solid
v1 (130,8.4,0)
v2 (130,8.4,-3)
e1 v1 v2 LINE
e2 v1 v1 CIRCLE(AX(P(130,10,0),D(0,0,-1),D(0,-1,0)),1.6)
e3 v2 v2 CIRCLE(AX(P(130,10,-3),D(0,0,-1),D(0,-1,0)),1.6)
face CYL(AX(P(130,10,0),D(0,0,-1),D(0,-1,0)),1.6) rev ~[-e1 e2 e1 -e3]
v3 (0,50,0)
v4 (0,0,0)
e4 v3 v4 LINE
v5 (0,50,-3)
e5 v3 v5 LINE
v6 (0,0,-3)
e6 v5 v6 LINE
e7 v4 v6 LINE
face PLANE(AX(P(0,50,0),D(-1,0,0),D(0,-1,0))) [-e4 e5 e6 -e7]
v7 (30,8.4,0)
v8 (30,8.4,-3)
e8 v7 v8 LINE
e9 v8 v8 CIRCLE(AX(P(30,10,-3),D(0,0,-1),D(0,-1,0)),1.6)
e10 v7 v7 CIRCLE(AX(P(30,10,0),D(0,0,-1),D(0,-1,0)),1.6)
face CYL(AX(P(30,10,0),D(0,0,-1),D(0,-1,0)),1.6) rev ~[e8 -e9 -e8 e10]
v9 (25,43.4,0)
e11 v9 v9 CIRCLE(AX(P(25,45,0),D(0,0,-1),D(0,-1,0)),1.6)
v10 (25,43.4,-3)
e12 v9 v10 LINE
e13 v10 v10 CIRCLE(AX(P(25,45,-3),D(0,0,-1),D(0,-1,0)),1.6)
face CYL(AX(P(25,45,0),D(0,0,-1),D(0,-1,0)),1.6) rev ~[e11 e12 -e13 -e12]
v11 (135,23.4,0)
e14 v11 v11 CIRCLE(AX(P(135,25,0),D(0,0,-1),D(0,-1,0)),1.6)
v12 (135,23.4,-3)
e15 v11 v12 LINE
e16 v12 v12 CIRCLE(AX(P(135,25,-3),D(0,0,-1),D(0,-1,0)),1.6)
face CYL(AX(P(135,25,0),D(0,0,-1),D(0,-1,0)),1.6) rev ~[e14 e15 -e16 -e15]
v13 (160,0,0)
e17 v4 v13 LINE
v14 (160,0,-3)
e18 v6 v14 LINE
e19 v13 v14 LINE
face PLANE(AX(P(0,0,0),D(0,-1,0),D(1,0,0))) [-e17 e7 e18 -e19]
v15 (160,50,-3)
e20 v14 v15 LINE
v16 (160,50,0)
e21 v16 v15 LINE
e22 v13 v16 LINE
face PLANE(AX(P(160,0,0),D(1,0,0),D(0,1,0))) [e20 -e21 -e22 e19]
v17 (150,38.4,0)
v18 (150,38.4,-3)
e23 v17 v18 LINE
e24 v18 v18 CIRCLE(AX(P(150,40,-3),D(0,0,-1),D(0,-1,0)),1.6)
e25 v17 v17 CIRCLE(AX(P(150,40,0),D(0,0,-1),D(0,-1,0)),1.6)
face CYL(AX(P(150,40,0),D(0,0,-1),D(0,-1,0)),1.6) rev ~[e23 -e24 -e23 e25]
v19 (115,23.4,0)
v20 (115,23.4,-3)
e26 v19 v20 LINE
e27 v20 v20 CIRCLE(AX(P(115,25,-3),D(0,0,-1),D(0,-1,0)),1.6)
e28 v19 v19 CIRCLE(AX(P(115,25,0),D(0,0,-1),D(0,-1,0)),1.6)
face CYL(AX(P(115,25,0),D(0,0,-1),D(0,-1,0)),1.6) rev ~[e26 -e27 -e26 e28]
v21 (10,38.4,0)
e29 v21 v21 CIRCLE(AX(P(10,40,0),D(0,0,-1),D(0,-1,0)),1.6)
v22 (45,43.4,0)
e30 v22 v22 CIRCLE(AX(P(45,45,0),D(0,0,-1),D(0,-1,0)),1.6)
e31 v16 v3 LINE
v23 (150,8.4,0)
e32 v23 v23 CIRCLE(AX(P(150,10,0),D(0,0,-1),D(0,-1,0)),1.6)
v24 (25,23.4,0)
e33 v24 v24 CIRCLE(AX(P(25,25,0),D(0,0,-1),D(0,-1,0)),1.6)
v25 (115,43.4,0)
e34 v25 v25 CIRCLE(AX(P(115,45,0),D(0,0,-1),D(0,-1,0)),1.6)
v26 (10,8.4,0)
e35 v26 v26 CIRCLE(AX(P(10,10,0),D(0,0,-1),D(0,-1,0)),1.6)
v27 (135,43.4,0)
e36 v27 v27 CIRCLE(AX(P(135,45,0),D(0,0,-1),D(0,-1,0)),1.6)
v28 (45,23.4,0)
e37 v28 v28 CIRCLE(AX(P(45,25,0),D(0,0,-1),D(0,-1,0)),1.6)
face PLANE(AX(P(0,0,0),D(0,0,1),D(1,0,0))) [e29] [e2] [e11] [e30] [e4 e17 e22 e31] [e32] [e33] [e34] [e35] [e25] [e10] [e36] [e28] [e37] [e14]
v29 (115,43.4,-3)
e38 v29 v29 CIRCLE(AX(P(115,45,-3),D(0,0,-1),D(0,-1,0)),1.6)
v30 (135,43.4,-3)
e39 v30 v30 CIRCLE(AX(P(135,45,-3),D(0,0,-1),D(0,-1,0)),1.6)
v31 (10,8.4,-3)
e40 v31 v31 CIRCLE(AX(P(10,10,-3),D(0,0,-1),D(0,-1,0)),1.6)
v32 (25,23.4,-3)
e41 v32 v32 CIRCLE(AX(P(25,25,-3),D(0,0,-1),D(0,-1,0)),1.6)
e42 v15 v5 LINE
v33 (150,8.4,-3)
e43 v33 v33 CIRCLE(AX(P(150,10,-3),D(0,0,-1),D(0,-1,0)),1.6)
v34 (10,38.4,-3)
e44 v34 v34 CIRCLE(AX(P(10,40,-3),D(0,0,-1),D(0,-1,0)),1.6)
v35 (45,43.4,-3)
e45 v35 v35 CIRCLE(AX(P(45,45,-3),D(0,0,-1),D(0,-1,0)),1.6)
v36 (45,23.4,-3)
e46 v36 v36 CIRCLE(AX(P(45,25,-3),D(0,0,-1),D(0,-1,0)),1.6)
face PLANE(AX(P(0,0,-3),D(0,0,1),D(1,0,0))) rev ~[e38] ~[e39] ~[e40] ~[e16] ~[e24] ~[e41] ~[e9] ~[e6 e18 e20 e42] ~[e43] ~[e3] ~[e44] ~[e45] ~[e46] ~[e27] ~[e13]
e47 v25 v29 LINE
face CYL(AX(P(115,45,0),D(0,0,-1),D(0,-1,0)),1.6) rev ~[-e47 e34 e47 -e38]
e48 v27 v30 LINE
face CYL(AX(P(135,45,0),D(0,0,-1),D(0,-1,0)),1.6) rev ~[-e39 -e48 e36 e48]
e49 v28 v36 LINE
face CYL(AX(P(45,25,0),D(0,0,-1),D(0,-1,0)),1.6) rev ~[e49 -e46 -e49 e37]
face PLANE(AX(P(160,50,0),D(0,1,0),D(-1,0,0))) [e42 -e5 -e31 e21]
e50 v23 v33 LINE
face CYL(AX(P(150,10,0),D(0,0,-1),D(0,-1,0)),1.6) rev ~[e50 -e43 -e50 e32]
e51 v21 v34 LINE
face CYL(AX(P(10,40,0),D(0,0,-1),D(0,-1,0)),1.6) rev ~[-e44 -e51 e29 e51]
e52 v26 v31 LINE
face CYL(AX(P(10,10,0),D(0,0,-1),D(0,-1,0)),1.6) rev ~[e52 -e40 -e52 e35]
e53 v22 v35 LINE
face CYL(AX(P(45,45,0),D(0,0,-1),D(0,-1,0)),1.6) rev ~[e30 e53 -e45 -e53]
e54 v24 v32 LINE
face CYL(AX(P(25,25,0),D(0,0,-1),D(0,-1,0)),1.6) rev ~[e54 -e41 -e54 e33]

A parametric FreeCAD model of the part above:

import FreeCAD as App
import Part
import Sketcher
Q = App.Units.Quantity

doc = App.newDocument("Part")
params = doc.addObject("Spreadsheet::Sheet", "Params")
for row, (alias, value) in enumerate([
    ("sketch1_width", "160 mm"),
    ("sketch1_height", "50 mm"),
    ("pad1_length", "3 mm"),
    ("sketch2_diameter", "3.2 mm"),
    ("hole_diameter", "3.2 mm"),
    ("sketch3_diameter", "3.2 mm"),
    ("hole2_diameter", "3.2 mm"),
], start=1):
    params.set(f"A{row}", alias)
    params.set(f"B{row}", "=" + value)
    params.setAlias(f"B{row}", alias)

body = doc.addObject("PartDesign::Body", "Body")

sketch1 = body.newObject("Sketcher::SketchObject", "Sketch")
sketch1.AttachmentSupport = (doc.getObject("XY_Plane"), [""])
sketch1.MapMode = "FlatFace"
sketch1.addGeometry(Part.LineSegment(App.Vector(0, 50, 0), App.Vector(0, 0, 0)), False)
sketch1.addGeometry(Part.LineSegment(App.Vector(0, 0, 0), App.Vector(160, 0, 0)), False)
sketch1.addGeometry(Part.LineSegment(App.Vector(160, 0, 0), App.Vector(160, 50, 0)), False)
sketch1.addGeometry(Part.LineSegment(App.Vector(160, 50, 0), App.Vector(0, 50, 0)), False)
sketch1.addConstraint(Sketcher.Constraint("Coincident", 0, 2, 1, 1))
sketch1.addConstraint(Sketcher.Constraint("Coincident", 1, 2, 2, 1))
sketch1.addConstraint(Sketcher.Constraint("Coincident", 2, 2, 3, 1))
sketch1.addConstraint(Sketcher.Constraint("Coincident", 3, 2, 0, 1))
sketch1.addConstraint(Sketcher.Constraint("Vertical", 0))
sketch1.addConstraint(Sketcher.Constraint("Horizontal", 1))
sketch1.addConstraint(Sketcher.Constraint("Vertical", 2))
sketch1.addConstraint(Sketcher.Constraint("Horizontal", 3))
sketch1.addConstraint(Sketcher.Constraint("Coincident", 0, 2, -1, 1))
sketch1.addConstraint(Sketcher.Constraint("DistanceX", 1, 1, 1, 2, Q("160 mm")))
sketch1.addConstraint(Sketcher.Constraint("DistanceY", 0, 2, 0, 1, Q("50 mm")))
sketch1.setExpression("Constraints[9]", "Params.sketch1_width")
sketch1.setExpression("Constraints[10]", "Params.sketch1_height")
pad1 = body.newObject("PartDesign::Pad", "Pad")
pad1.Profile = sketch1
pad1.setExpression("Length", "Params.pad1_length")
pad1.Reversed = True

sketch2 = body.newObject("Sketcher::SketchObject", "Sketch001")
sketch2.AttachmentSupport = (doc.getObject("XY_Plane"), [""])
sketch2.MapMode = "FlatFace"
sketch2.addGeometry(Part.Circle(App.Vector(135, 45, 0), App.Vector(0, 0, 1), 1.6), False)
sketch2.addGeometry(Part.Circle(App.Vector(135, 25, 0), App.Vector(0, 0, 1), 1.6), False)
sketch2.addGeometry(Part.Circle(App.Vector(25, 45, 0), App.Vector(0, 0, 1), 1.6), False)
sketch2.addGeometry(Part.Circle(App.Vector(25, 25, 0), App.Vector(0, 0, 1), 1.6), False)
sketch2.addGeometry(Part.Circle(App.Vector(115, 45, 0), App.Vector(0, 0, 1), 1.6), False)
sketch2.addGeometry(Part.Circle(App.Vector(115, 25, 0), App.Vector(0, 0, 1), 1.6), False)
sketch2.addGeometry(Part.Circle(App.Vector(45, 45, 0), App.Vector(0, 0, 1), 1.6), False)
sketch2.addGeometry(Part.Circle(App.Vector(45, 25, 0), App.Vector(0, 0, 1), 1.6), False)
sketch2.addGeometry(Part.Circle(App.Vector(150, 40, 0), App.Vector(0, 0, 1), 1.6), False)
sketch2.addGeometry(Part.Circle(App.Vector(150, 10, 0), App.Vector(0, 0, 1), 1.6), False)
sketch2.addGeometry(Part.Circle(App.Vector(10, 40, 0), App.Vector(0, 0, 1), 1.6), False)
sketch2.addGeometry(Part.Circle(App.Vector(10, 10, 0), App.Vector(0, 0, 1), 1.6), False)
sketch2.addConstraint(Sketcher.Constraint("Equal", 0, 1))
sketch2.addConstraint(Sketcher.Constraint("Equal", 1, 2))
sketch2.addConstraint(Sketcher.Constraint("Equal", 2, 3))
sketch2.addConstraint(Sketcher.Constraint("Equal", 3, 4))
sketch2.addConstraint(Sketcher.Constraint("Equal", 4, 5))
sketch2.addConstraint(Sketcher.Constraint("Equal", 5, 6))
sketch2.addConstraint(Sketcher.Constraint("Equal", 6, 7))
sketch2.addConstraint(Sketcher.Constraint("Equal", 7, 8))
sketch2.addConstraint(Sketcher.Constraint("Equal", 8, 9))
sketch2.addConstraint(Sketcher.Constraint("Equal", 9, 10))
sketch2.addConstraint(Sketcher.Constraint("Equal", 10, 11))
sketch2.addConstraint(Sketcher.Constraint("Horizontal", 0, 3, 2, 3))
sketch2.addConstraint(Sketcher.Constraint("Horizontal", 1, 3, 3, 3))
sketch2.addConstraint(Sketcher.Constraint("Horizontal", 2, 3, 4, 3))
sketch2.addConstraint(Sketcher.Constraint("Horizontal", 3, 3, 5, 3))
sketch2.addConstraint(Sketcher.Constraint("Horizontal", 4, 3, 6, 3))
sketch2.addConstraint(Sketcher.Constraint("Horizontal", 5, 3, 7, 3))
sketch2.addConstraint(Sketcher.Constraint("Horizontal", 8, 3, 10, 3))
sketch2.addConstraint(Sketcher.Constraint("Horizontal", 9, 3, 11, 3))
sketch2.addConstraint(Sketcher.Constraint("Vertical", 0, 3, 1, 3))
sketch2.addConstraint(Sketcher.Constraint("Vertical", 2, 3, 3, 3))
sketch2.addConstraint(Sketcher.Constraint("Vertical", 4, 3, 5, 3))
sketch2.addConstraint(Sketcher.Constraint("Vertical", 6, 3, 7, 3))
sketch2.addConstraint(Sketcher.Constraint("Vertical", 8, 3, 9, 3))
sketch2.addConstraint(Sketcher.Constraint("Vertical", 10, 3, 11, 3))
sketch2.addConstraint(Sketcher.Constraint("Diameter", 0, Q("3.2 mm")))
sketch2.addConstraint(Sketcher.Constraint("DistanceX", -1, 1, 0, 3, Q("135 mm")))
sketch2.addConstraint(Sketcher.Constraint("DistanceY", -1, 1, 0, 3, Q("45 mm")))
sketch2.addConstraint(Sketcher.Constraint("DistanceY", -1, 1, 1, 3, Q("25 mm")))
sketch2.addConstraint(Sketcher.Constraint("DistanceX", -1, 1, 2, 3, Q("25 mm")))
sketch2.addConstraint(Sketcher.Constraint("DistanceX", -1, 1, 4, 3, Q("115 mm")))
sketch2.addConstraint(Sketcher.Constraint("DistanceX", -1, 1, 6, 3, Q("45 mm")))
sketch2.addConstraint(Sketcher.Constraint("DistanceX", -1, 1, 8, 3, Q("150 mm")))
sketch2.addConstraint(Sketcher.Constraint("DistanceY", -1, 1, 8, 3, Q("40 mm")))
sketch2.addConstraint(Sketcher.Constraint("DistanceY", -1, 1, 9, 3, Q("10 mm")))
sketch2.addConstraint(Sketcher.Constraint("DistanceX", -1, 1, 10, 3, Q("10 mm")))
sketch2.setExpression("Constraints[25]", "Params.sketch2_diameter")
doc.recompute()
hole = body.newObject("PartDesign::Hole", "Hole")
hole.Profile = sketch2
hole.ThreadType = "None"
hole.setExpression("Diameter", "Params.hole_diameter")
hole.DepthType = "ThroughAll"

sketch3 = body.newObject("Sketcher::SketchObject", "Sketch002")
sketch3.AttachmentSupport = (doc.getObject("XY_Plane"), [""])
sketch3.MapMode = "FlatFace"
sketch3.addGeometry(Part.Circle(App.Vector(30, 10, 0), App.Vector(0, 0, 1), 1.6), False)
sketch3.addGeometry(Part.Circle(App.Vector(130, 10, 0), App.Vector(0, 0, 1), 1.6), False)
sketch3.addConstraint(Sketcher.Constraint("Equal", 0, 1))
sketch3.addConstraint(Sketcher.Constraint("Horizontal", 0, 3, 1, 3))
sketch3.addConstraint(Sketcher.Constraint("Diameter", 0, Q("3.2 mm")))
sketch3.addConstraint(Sketcher.Constraint("DistanceX", -1, 1, 0, 3, Q("30 mm")))
sketch3.addConstraint(Sketcher.Constraint("DistanceY", -1, 1, 0, 3, Q("10 mm")))
sketch3.addConstraint(Sketcher.Constraint("DistanceX", -1, 1, 1, 3, Q("130 mm")))
sketch3.setExpression("Constraints[2]", "Params.sketch3_diameter")
doc.recompute()
hole2 = body.newObject("PartDesign::Hole", "Hole001")
hole2.Profile = sketch3
hole2.ThreadType = "None"
hole2.setExpression("Diameter", "Params.hole2_diameter")
hole2.DepthType = "ThroughAll"

doc.recompute()
